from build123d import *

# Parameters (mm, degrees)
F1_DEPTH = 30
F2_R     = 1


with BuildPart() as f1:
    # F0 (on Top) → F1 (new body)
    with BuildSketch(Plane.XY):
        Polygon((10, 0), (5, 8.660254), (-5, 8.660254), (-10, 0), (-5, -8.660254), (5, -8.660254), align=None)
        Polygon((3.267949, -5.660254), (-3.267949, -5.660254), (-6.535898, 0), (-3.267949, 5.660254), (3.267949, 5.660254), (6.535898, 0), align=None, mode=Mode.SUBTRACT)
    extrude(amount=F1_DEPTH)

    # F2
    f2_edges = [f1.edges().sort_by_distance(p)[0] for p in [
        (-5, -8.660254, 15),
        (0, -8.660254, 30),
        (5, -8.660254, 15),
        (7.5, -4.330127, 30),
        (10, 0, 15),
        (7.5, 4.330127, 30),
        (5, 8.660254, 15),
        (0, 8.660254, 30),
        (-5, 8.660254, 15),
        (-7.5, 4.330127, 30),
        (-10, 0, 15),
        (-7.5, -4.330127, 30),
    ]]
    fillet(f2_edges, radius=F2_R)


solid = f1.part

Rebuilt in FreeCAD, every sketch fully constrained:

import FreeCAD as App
import Part
import Sketcher
Q = App.Units.Quantity


def edges_at(feature, points):
    """Names of the edges that pass closest to the given points."""
    edges = feature.Shape.Edges
    near = lambda p: min(range(len(edges)), key=lambda i: edges[i].distToShape(Part.Vertex(*p))[0])
    return sorted({f"Edge{near(p) + 1}" for p in points})


def add_polygon(sketch, points):
    """Adds a closed chain of lines whose ends are joined by coincident constraints."""
    first, n = sketch.GeometryCount, len(points)
    for a, b in zip(points, points[1:] + points[:1]):
        sketch.addGeometry(Part.LineSegment(App.Vector(*a, 0), App.Vector(*b, 0)), False)
    for i in range(n):
        sketch.addConstraint(Sketcher.Constraint("Coincident", first + i, 2, first + (i + 1) % n, 1))

doc = App.newDocument("Part")
body = doc.addObject("PartDesign::Body", "Body")

# Sketch on XY plane
sketch1 = doc.addObject("Sketcher::SketchObject", "Sketch")
body.addObject(sketch1)
sketch1.AttachmentSupport = (doc.XY_Plane, [""])
sketch1.MapMode = "FlatFace"
add_polygon(sketch1, [(10, 0), (5, 8.660254), (-5, 8.660254), (-10, 0), (-5, -8.660254), (5, -8.660254)])  # lines 0-5
add_polygon(sketch1, [(6.535898, 0), (3.267949, -5.660254), (-3.267949, -5.660254), (-6.535898, 0), (-3.267949, 5.660254), (3.267949, 5.660254)])  # lines 6-11
sketch1.addConstraint(Sketcher.Constraint("Horizontal", 1))
sketch1.addConstraint(Sketcher.Constraint("Horizontal", 4))
sketch1.addConstraint(Sketcher.Constraint("Horizontal", 7))
sketch1.addConstraint(Sketcher.Constraint("Horizontal", 10))
sketch1.addConstraint(Sketcher.Constraint("Symmetric", 0, 2, 3, 2, -1, 1))
sketch1.addConstraint(Sketcher.Constraint("Symmetric", 2, 2, 5, 2, -1, 1))
sketch1.addConstraint(Sketcher.Constraint("Symmetric", 6, 2, 9, 2, -1, 1))
sketch1.addConstraint(Sketcher.Constraint("Symmetric", 8, 2, 11, 2, -1, 1))
sketch1.addConstraint(Sketcher.Constraint("PointOnObject", 2, 2, -1))
sketch1.addConstraint(Sketcher.Constraint("PointOnObject", 8, 2, -1))
sketch1.addConstraint(Sketcher.Constraint("Parallel", 2, 5))
sketch1.addConstraint(Sketcher.Constraint("Parallel", 5, 6))
sketch1.addConstraint(Sketcher.Constraint("Parallel", 3, 8))
sketch1.addConstraint(Sketcher.Constraint("Parallel", 8, 11))
sketch1.addConstraint(Sketcher.Constraint("Vertical", 1, 2, 3, 2))
sketch1.addConstraint(Sketcher.Constraint("DistanceX", 1, 2, 1, 1, Q("10 mm")))
sketch1.addConstraint(Sketcher.Constraint("Angle", 0, Q("120 deg")))
sketch1.addConstraint(Sketcher.Constraint("Distance", 0, Q("10 mm")))
sketch1.addConstraint(Sketcher.Constraint("DistanceY", 4, 2, 6, 2, Q("3 mm")))
sketch1.addConstraint(Sketcher.Constraint("DistanceX", 7, 2, 7, 1, Q("6.535898 mm")))
pad1 = doc.addObject("PartDesign::Pad", "Pad")
body.addObject(pad1)
pad1.Profile = sketch1
pad1.Length = 30
doc.recompute()

fillet = doc.addObject("PartDesign::Fillet", "Fillet")
body.addObject(fillet)
fillet.Base = (pad1, edges_at(pad1, [
    (-5, -8.66, 15),
    (0, -8.66, 30),
    (5, -8.66, 15),
    (7.5, -4.33, 30),
    (10, 0, 15),
    (7.5, 4.33, 30),
    (5, 8.66, 15),
    (0, 8.66, 30),
    (-5, 8.66, 15),
    (-7.5, 4.33, 30),
    (-10, 0, 15),
    (-7.5, -4.33, 30),
]))
fillet.Radius = 1

doc.recompute()
